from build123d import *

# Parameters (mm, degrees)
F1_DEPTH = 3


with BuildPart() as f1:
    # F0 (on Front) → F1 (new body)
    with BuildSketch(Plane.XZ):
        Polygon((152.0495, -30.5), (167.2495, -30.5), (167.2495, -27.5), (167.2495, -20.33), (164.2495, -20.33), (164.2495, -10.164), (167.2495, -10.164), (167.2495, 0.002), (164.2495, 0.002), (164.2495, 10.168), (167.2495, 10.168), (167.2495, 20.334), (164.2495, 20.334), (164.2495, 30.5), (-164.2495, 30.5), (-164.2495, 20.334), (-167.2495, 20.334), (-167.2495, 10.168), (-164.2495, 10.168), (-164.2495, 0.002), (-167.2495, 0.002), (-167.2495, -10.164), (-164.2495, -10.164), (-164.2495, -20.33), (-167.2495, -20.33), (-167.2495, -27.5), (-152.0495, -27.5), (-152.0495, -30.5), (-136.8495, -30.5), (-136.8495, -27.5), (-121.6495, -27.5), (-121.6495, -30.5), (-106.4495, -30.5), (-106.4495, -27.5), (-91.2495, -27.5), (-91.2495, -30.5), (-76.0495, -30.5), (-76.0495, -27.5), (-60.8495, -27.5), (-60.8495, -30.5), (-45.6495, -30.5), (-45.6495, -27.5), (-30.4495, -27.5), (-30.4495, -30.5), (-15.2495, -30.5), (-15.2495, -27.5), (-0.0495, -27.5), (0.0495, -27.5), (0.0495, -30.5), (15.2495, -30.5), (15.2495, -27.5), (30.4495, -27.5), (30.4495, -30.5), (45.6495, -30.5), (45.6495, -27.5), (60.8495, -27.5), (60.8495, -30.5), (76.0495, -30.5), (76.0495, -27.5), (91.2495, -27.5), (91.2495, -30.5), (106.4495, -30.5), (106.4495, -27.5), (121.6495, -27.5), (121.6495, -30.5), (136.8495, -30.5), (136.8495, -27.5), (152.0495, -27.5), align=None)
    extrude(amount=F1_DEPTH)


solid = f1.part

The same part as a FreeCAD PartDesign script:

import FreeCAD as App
import Part
import Sketcher

doc = App.newDocument("Part")
body = doc.addObject("PartDesign::Body", "Body")

sketch1 = body.newObject("Sketcher::SketchObject", "Sketch")
sketch1.AttachmentSupport = (doc.getObject("XZ_Plane"), [""])
sketch1.MapMode = "FlatFace"
sketch1.addGeometry(Part.LineSegment(App.Vector(152.0495, -30.5, 0), App.Vector(167.2495, -30.5, 0)), False)
sketch1.addGeometry(Part.LineSegment(App.Vector(167.2495, -30.5, 0), App.Vector(167.2495, -20.33, 0)), False)
sketch1.addGeometry(Part.LineSegment(App.Vector(167.2495, -20.33, 0), App.Vector(164.2495, -20.33, 0)), False)
sketch1.addGeometry(Part.LineSegment(App.Vector(164.2495, -20.33, 0), App.Vector(164.2495, -10.164, 0)), False)
sketch1.addGeometry(Part.LineSegment(App.Vector(164.2495, -10.164, 0), App.Vector(167.2495, -10.164, 0)), False)
sketch1.addGeometry(Part.LineSegment(App.Vector(167.2495, -10.164, 0), App.Vector(167.2495, 0.002, 0)), False)
sketch1.addGeometry(Part.LineSegment(App.Vector(167.2495, 0.002, 0), App.Vector(164.2495, 0.002, 0)), False)
sketch1.addGeometry(Part.LineSegment(App.Vector(164.2495, 0.002, 0), App.Vector(164.2495, 10.168, 0)), False)
sketch1.addGeometry(Part.LineSegment(App.Vector(164.2495, 10.168, 0), App.Vector(167.2495, 10.168, 0)), False)
sketch1.addGeometry(Part.LineSegment(App.Vector(167.2495, 10.168, 0), App.Vector(167.2495, 20.334, 0)), False)
sketch1.addGeometry(Part.LineSegment(App.Vector(167.2495, 20.334, 0), App.Vector(164.2495, 20.334, 0)), False)
sketch1.addGeometry(Part.LineSegment(App.Vector(164.2495, 20.334, 0), App.Vector(164.2495, 30.5, 0)), False)
sketch1.addGeometry(Part.LineSegment(App.Vector(164.2495, 30.5, 0), App.Vector(-164.2495, 30.5, 0)), False)
sketch1.addGeometry(Part.LineSegment(App.Vector(-164.2495, 30.5, 0), App.Vector(-164.2495, 20.334, 0)), False)
sketch1.addGeometry(Part.LineSegment(App.Vector(-164.2495, 20.334, 0), App.Vector(-167.2495, 20.334, 0)), False)
sketch1.addGeometry(Part.LineSegment(App.Vector(-167.2495, 20.334, 0), App.Vector(-167.2495, 10.168, 0)), False)
sketch1.addGeometry(Part.LineSegment(App.Vector(-167.2495, 10.168, 0), App.Vector(-164.2495, 10.168, 0)), False)
sketch1.addGeometry(Part.LineSegment(App.Vector(-164.2495, 10.168, 0), App.Vector(-164.2495, 0.002, 0)), False)
sketch1.addGeometry(Part.LineSegment(App.Vector(-164.2495, 0.002, 0), App.Vector(-167.2495, 0.002, 0)), False)
sketch1.addGeometry(Part.LineSegment(App.Vector(-167.2495, 0.002, 0), App.Vector(-167.2495, -10.164, 0)), False)
sketch1.addGeometry(Part.LineSegment(App.Vector(-167.2495, -10.164, 0), App.Vector(-164.2495, -10.164, 0)), False)
sketch1.addGeometry(Part.LineSegment(App.Vector(-164.2495, -10.164, 0), App.Vector(-164.2495, -20.33, 0)), False)
sketch1.addGeometry(Part.LineSegment(App.Vector(-164.2495, -20.33, 0), App.Vector(-167.2495, -20.33, 0)), False)
sketch1.addGeometry(Part.LineSegment(App.Vector(-167.2495, -20.33, 0), App.Vector(-167.2495, -27.5, 0)), False)
sketch1.addGeometry(Part.LineSegment(App.Vector(-167.2495, -27.5, 0), App.Vector(-152.0495, -27.5, 0)), False)
sketch1.addGeometry(Part.LineSegment(App.Vector(-152.0495, -27.5, 0), App.Vector(-152.0495, -30.5, 0)), False)
sketch1.addGeometry(Part.LineSegment(App.Vector(-152.0495, -30.5, 0), App.Vector(-136.8495, -30.5, 0)), False)
sketch1.addGeometry(Part.LineSegment(App.Vector(-136.8495, -30.5, 0), App.Vector(-136.8495, -27.5, 0)), False)
sketch1.addGeometry(Part.LineSegment(App.Vector(-136.8495, -27.5, 0), App.Vector(-121.6495, -27.5, 0)), False)
sketch1.addGeometry(Part.LineSegment(App.Vector(-121.6495, -27.5, 0), App.Vector(-121.6495, -30.5, 0)), False)
sketch1.addGeometry(Part.LineSegment(App.Vector(-121.6495, -30.5, 0), App.Vector(-106.4495, -30.5, 0)), False)
sketch1.addGeometry(Part.LineSegment(App.Vector(-106.4495, -30.5, 0), App.Vector(-106.4495, -27.5, 0)), False)
sketch1.addGeometry(Part.LineSegment(App.Vector(-106.4495, -27.5, 0), App.Vector(-91.2495, -27.5, 0)), False)
sketch1.addGeometry(Part.LineSegment(App.Vector(-91.2495, -27.5, 0), App.Vector(-91.2495, -30.5, 0)), False)
sketch1.addGeometry(Part.LineSegment(App.Vector(-91.2495, -30.5, 0), App.Vector(-76.0495, -30.5, 0)), False)
sketch1.addGeometry(Part.LineSegment(App.Vector(-76.0495, -30.5, 0), App.Vector(-76.0495, -27.5, 0)), False)
sketch1.addGeometry(Part.LineSegment(App.Vector(-76.0495, -27.5, 0), App.Vector(-60.8495, -27.5, 0)), False)
sketch1.addGeometry(Part.LineSegment(App.Vector(-60.8495, -27.5, 0), App.Vector(-60.8495, -30.5, 0)), False)
sketch1.addGeometry(Part.LineSegment(App.Vector(-60.8495, -30.5, 0), App.Vector(-45.6495, -30.5, 0)), False)
sketch1.addGeometry(Part.LineSegment(App.Vector(-45.6495, -30.5, 0), App.Vector(-45.6495, -27.5, 0)), False)
sketch1.addGeometry(Part.LineSegment(App.Vector(-45.6495, -27.5, 0), App.Vector(-30.4495, -27.5, 0)), False)
sketch1.addGeometry(Part.LineSegment(App.Vector(-30.4495, -27.5, 0), App.Vector(-30.4495, -30.5, 0)), False)
sketch1.addGeometry(Part.LineSegment(App.Vector(-30.4495, -30.5, 0), App.Vector(-15.2495, -30.5, 0)), False)
sketch1.addGeometry(Part.LineSegment(App.Vector(-15.2495, -30.5, 0), App.Vector(-15.2495, -27.5, 0)), False)
sketch1.addGeometry(Part.LineSegment(App.Vector(-15.2495, -27.5, 0), App.Vector(0.0495, -27.5, 0)), False)
sketch1.addGeometry(Part.LineSegment(App.Vector(0.0495, -27.5, 0), App.Vector(0.0495, -30.5, 0)), False)
sketch1.addGeometry(Part.LineSegment(App.Vector(0.0495, -30.5, 0), App.Vector(15.2495, -30.5, 0)), False)
sketch1.addGeometry(Part.LineSegment(App.Vector(15.2495, -30.5, 0), App.Vector(15.2495, -27.5, 0)), False)
sketch1.addGeometry(Part.LineSegment(App.Vector(15.2495, -27.5, 0), App.Vector(30.4495, -27.5, 0)), False)
sketch1.addGeometry(Part.LineSegment(App.Vector(30.4495, -27.5, 0), App.Vector(30.4495, -30.5, 0)), False)
sketch1.addGeometry(Part.LineSegment(App.Vector(30.4495, -30.5, 0), App.Vector(45.6495, -30.5, 0)), False)
sketch1.addGeometry(Part.LineSegment(App.Vector(45.6495, -30.5, 0), App.Vector(45.6495, -27.5, 0)), False)
sketch1.addGeometry(Part.LineSegment(App.Vector(45.6495, -27.5, 0), App.Vector(60.8495, -27.5, 0)), False)
sketch1.addGeometry(Part.LineSegment(App.Vector(60.8495, -27.5, 0), App.Vector(60.8495, -30.5, 0)), False)
sketch1.addGeometry(Part.LineSegment(App.Vector(60.8495, -30.5, 0), App.Vector(76.0495, -30.5, 0)), False)
sketch1.addGeometry(Part.LineSegment(App.Vector(76.0495, -30.5, 0), App.Vector(76.0495, -27.5, 0)), False)
sketch1.addGeometry(Part.LineSegment(App.Vector(76.0495, -27.5, 0), App.Vector(91.2495, -27.5, 0)), False)
sketch1.addGeometry(Part.LineSegment(App.Vector(91.2495, -27.5, 0), App.Vector(91.2495, -30.5, 0)), False)
sketch1.addGeometry(Part.LineSegment(App.Vector(91.2495, -30.5, 0), App.Vector(106.4495, -30.5, 0)), False)
sketch1.addGeometry(Part.LineSegment(App.Vector(106.4495, -30.5, 0), App.Vector(106.4495, -27.5, 0)), False)
sketch1.addGeometry(Part.LineSegment(App.Vector(106.4495, -27.5, 0), App.Vector(121.6495, -27.5, 0)), False)
sketch1.addGeometry(Part.LineSegment(App.Vector(121.6495, -27.5, 0), App.Vector(121.6495, -30.5, 0)), False)
sketch1.addGeometry(Part.LineSegment(App.Vector(121.6495, -30.5, 0), App.Vector(136.8495, -30.5, 0)), False)
sketch1.addGeometry(Part.LineSegment(App.Vector(136.8495, -30.5, 0), App.Vector(136.8495, -27.5, 0)), False)
sketch1.addGeometry(Part.LineSegment(App.Vector(136.8495, -27.5, 0), App.Vector(152.0495, -27.5, 0)), False)
sketch1.addGeometry(Part.LineSegment(App.Vector(152.0495, -27.5, 0), App.Vector(152.0495, -30.5, 0)), False)
sketch1.addConstraint(Sketcher.Constraint("Coincident", 0, 2, 1, 1))
sketch1.addConstraint(Sketcher.Constraint("Coincident", 1, 2, 2, 1))
sketch1.addConstraint(Sketcher.Constraint("Coincident", 2, 2, 3, 1))
sketch1.addConstraint(Sketcher.Constraint("Coincident", 3, 2, 4, 1))
sketch1.addConstraint(Sketcher.Constraint("Coincident", 4, 2, 5, 1))
sketch1.addConstraint(Sketcher.Constraint("Coincident", 5, 2, 6, 1))
sketch1.addConstraint(Sketcher.Constraint("Coincident", 6, 2, 7, 1))
sketch1.addConstraint(Sketcher.Constraint("Coincident", 7, 2, 8, 1))
sketch1.addConstraint(Sketcher.Constraint("Coincident", 8, 2, 9, 1))
sketch1.addConstraint(Sketcher.Constraint("Coincident", 9, 2, 10, 1))
sketch1.addConstraint(Sketcher.Constraint("Coincident", 10, 2, 11, 1))
sketch1.addConstraint(Sketcher.Constraint("Coincident", 11, 2, 12, 1))
sketch1.addConstraint(Sketcher.Constraint("Coincident", 12, 2, 13, 1))
sketch1.addConstraint(Sketcher.Constraint("Coincident", 13, 2, 14, 1))
sketch1.addConstraint(Sketcher.Constraint("Coincident", 14, 2, 15, 1))
sketch1.addConstraint(Sketcher.Constraint("Coincident", 15, 2, 16, 1))
sketch1.addConstraint(Sketcher.Constraint("Coincident", 16, 2, 17, 1))
sketch1.addConstraint(Sketcher.Constraint("Coincident", 17, 2, 18, 1))
sketch1.addConstraint(Sketcher.Constraint("Coincident", 18, 2, 19, 1))
sketch1.addConstraint(Sketcher.Constraint("Coincident", 19, 2, 20, 1))
sketch1.addConstraint(Sketcher.Constraint("Coincident", 20, 2, 21, 1))
sketch1.addConstraint(Sketcher.Constraint("Coincident", 21, 2, 22, 1))
sketch1.addConstraint(Sketcher.Constraint("Coincident", 22, 2, 23, 1))
sketch1.addConstraint(Sketcher.Constraint("Coincident", 23, 2, 24, 1))
sketch1.addConstraint(Sketcher.Constraint("Coincident", 24, 2, 25, 1))
sketch1.addConstraint(Sketcher.Constraint("Coincident", 25, 2, 26, 1))
sketch1.addConstraint(Sketcher.Constraint("Coincident", 26, 2, 27, 1))
sketch1.addConstraint(Sketcher.Constraint("Coincident", 27, 2, 28, 1))
sketch1.addConstraint(Sketcher.Constraint("Coincident", 28, 2, 29, 1))
sketch1.addConstraint(Sketcher.Constraint("Coincident", 29, 2, 30, 1))
sketch1.addConstraint(Sketcher.Constraint("Coincident", 30, 2, 31, 1))
sketch1.addConstraint(Sketcher.Constraint("Coincident", 31, 2, 32, 1))
sketch1.addConstraint(Sketcher.Constraint("Coincident", 32, 2, 33, 1))
sketch1.addConstraint(Sketcher.Constraint("Coincident", 33, 2, 34, 1))
sketch1.addConstraint(Sketcher.Constraint("Coincident", 34, 2, 35, 1))
sketch1.addConstraint(Sketcher.Constraint("Coincident", 35, 2, 36, 1))
sketch1.addConstraint(Sketcher.Constraint("Coincident", 36, 2, 37, 1))
sketch1.addConstraint(Sketcher.Constraint("Coincident", 37, 2, 38, 1))
sketch1.addConstraint(Sketcher.Constraint("Coincident", 38, 2, 39, 1))
sketch1.addConstraint(Sketcher.Constraint("Coincident", 39, 2, 40, 1))
sketch1.addConstraint(Sketcher.Constraint("Coincident", 40, 2, 41, 1))
sketch1.addConstraint(Sketcher.Constraint("Coincident", 41, 2, 42, 1))
sketch1.addConstraint(Sketcher.Constraint("Coincident", 42, 2, 43, 1))
sketch1.addConstraint(Sketcher.Constraint("Coincident", 43, 2, 44, 1))
sketch1.addConstraint(Sketcher.Constraint("Coincident", 44, 2, 45, 1))
sketch1.addConstraint(Sketcher.Constraint("Coincident", 45, 2, 46, 1))
sketch1.addConstraint(Sketcher.Constraint("Coincident", 46, 2, 47, 1))
sketch1.addConstraint(Sketcher.Constraint("Coincident", 47, 2, 48, 1))
sketch1.addConstraint(Sketcher.Constraint("Coincident", 48, 2, 49, 1))
sketch1.addConstraint(Sketcher.Constraint("Coincident", 49, 2, 50, 1))
sketch1.addConstraint(Sketcher.Constraint("Coincident", 50, 2, 51, 1))
sketch1.addConstraint(Sketcher.Constraint("Coincident", 51, 2, 52, 1))
sketch1.addConstraint(Sketcher.Constraint("Coincident", 52, 2, 53, 1))
sketch1.addConstraint(Sketcher.Constraint("Coincident", 53, 2, 54, 1))
sketch1.addConstraint(Sketcher.Constraint("Coincident", 54, 2, 55, 1))
sketch1.addConstraint(Sketcher.Constraint("Coincident", 55, 2, 56, 1))
sketch1.addConstraint(Sketcher.Constraint("Coincident", 56, 2, 57, 1))
sketch1.addConstraint(Sketcher.Constraint("Coincident", 57, 2, 58, 1))
sketch1.addConstraint(Sketcher.Constraint("Coincident", 58, 2, 59, 1))
sketch1.addConstraint(Sketcher.Constraint("Coincident", 59, 2, 60, 1))
sketch1.addConstraint(Sketcher.Constraint("Coincident", 60, 2, 61, 1))
sketch1.addConstraint(Sketcher.Constraint("Coincident", 61, 2, 62, 1))
sketch1.addConstraint(Sketcher.Constraint("Coincident", 62, 2, 63, 1))
sketch1.addConstraint(Sketcher.Constraint("Coincident", 63, 2, 64, 1))
sketch1.addConstraint(Sketcher.Constraint("Coincident", 64, 2, 65, 1))
sketch1.addConstraint(Sketcher.Constraint("Coincident", 65, 2, 0, 1))
sketch1.addConstraint(Sketcher.Constraint("Horizontal", 0))
sketch1.addConstraint(Sketcher.Constraint("Vertical", 1))
sketch1.addConstraint(Sketcher.Constraint("Horizontal", 2))
sketch1.addConstraint(Sketcher.Constraint("Vertical", 3))
sketch1.addConstraint(Sketcher.Constraint("Horizontal", 4))
sketch1.addConstraint(Sketcher.Constraint("Vertical", 5))
sketch1.addConstraint(Sketcher.Constraint("Horizontal", 6))
sketch1.addConstraint(Sketcher.Constraint("Vertical", 7))
sketch1.addConstraint(Sketcher.Constraint("Horizontal", 8))
sketch1.addConstraint(Sketcher.Constraint("Vertical", 9))
sketch1.addConstraint(Sketcher.Constraint("Horizontal", 10))
sketch1.addConstraint(Sketcher.Constraint("Vertical", 11))
sketch1.addConstraint(Sketcher.Constraint("Horizontal", 12))
sketch1.addConstraint(Sketcher.Constraint("Vertical", 13))
sketch1.addConstraint(Sketcher.Constraint("Horizontal", 14))
sketch1.addConstraint(Sketcher.Constraint("Vertical", 15))
sketch1.addConstraint(Sketcher.Constraint("Horizontal", 16))
sketch1.addConstraint(Sketcher.Constraint("Vertical", 17))
sketch1.addConstraint(Sketcher.Constraint("Horizontal", 18))
sketch1.addConstraint(Sketcher.Constraint("Vertical", 19))
sketch1.addConstraint(Sketcher.Constraint("Horizontal", 20))
sketch1.addConstraint(Sketcher.Constraint("Vertical", 21))
sketch1.addConstraint(Sketcher.Constraint("Horizontal", 22))
sketch1.addConstraint(Sketcher.Constraint("Vertical", 23))
sketch1.addConstraint(Sketcher.Constraint("Horizontal", 24))
sketch1.addConstraint(Sketcher.Constraint("Vertical", 25))
sketch1.addConstraint(Sketcher.Constraint("Horizontal", 26))
sketch1.addConstraint(Sketcher.Constraint("Vertical", 27))
sketch1.addConstraint(Sketcher.Constraint("Horizontal", 28))
sketch1.addConstraint(Sketcher.Constraint("Vertical", 29))
sketch1.addConstraint(Sketcher.Constraint("Horizontal", 30))
sketch1.addConstraint(Sketcher.Constraint("Vertical", 31))
sketch1.addConstraint(Sketcher.Constraint("Horizontal", 32))
sketch1.addConstraint(Sketcher.Constraint("Vertical", 33))
sketch1.addConstraint(Sketcher.Constraint("Horizontal", 34))
sketch1.addConstraint(Sketcher.Constraint("Vertical", 35))
sketch1.addConstraint(Sketcher.Constraint("Horizontal", 36))
sketch1.addConstraint(Sketcher.Constraint("Vertical", 37))
sketch1.addConstraint(Sketcher.Constraint("Horizontal", 38))
sketch1.addConstraint(Sketcher.Constraint("Vertical", 39))
sketch1.addConstraint(Sketcher.Constraint("Horizontal", 40))
sketch1.addConstraint(Sketcher.Constraint("Vertical", 41))
sketch1.addConstraint(Sketcher.Constraint("Horizontal", 42))
sketch1.addConstraint(Sketcher.Constraint("Vertical", 43))
sketch1.addConstraint(Sketcher.Constraint("Horizontal", 44))
sketch1.addConstraint(Sketcher.Constraint("Vertical", 45))
sketch1.addConstraint(Sketcher.Constraint("Horizontal", 46))
sketch1.addConstraint(Sketcher.Constraint("Vertical", 47))
sketch1.addConstraint(Sketcher.Constraint("Horizontal", 48))
sketch1.addConstraint(Sketcher.Constraint("Vertical", 49))
sketch1.addConstraint(Sketcher.Constraint("Horizontal", 50))
sketch1.addConstraint(Sketcher.Constraint("Vertical", 51))
sketch1.addConstraint(Sketcher.Constraint("Horizontal", 52))
sketch1.addConstraint(Sketcher.Constraint("Vertical", 53))
sketch1.addConstraint(Sketcher.Constraint("Horizontal", 54))
sketch1.addConstraint(Sketcher.Constraint("Vertical", 55))
sketch1.addConstraint(Sketcher.Constraint("Horizontal", 56))
sketch1.addConstraint(Sketcher.Constraint("Vertical", 57))
sketch1.addConstraint(Sketcher.Constraint("Horizontal", 58))
sketch1.addConstraint(Sketcher.Constraint("Vertical", 59))
sketch1.addConstraint(Sketcher.Constraint("Horizontal", 60))
sketch1.addConstraint(Sketcher.Constraint("Vertical", 61))
sketch1.addConstraint(Sketcher.Constraint("Horizontal", 62))
sketch1.addConstraint(Sketcher.Constraint("Vertical", 63))
sketch1.addConstraint(Sketcher.Constraint("Horizontal", 64))
sketch1.addConstraint(Sketcher.Constraint("Vertical", 65))
sketch1.addConstraint(Sketcher.Constraint("Symmetric", 10, 2, 13, 2, -2))
sketch1.addConstraint(Sketcher.Constraint("Symmetric", 8, 2, 15, 2, -2))
sketch1.addConstraint(Sketcher.Constraint("Symmetric", 6, 2, 17, 2, -2))
sketch1.addConstraint(Sketcher.Constraint("Symmetric", 4, 2, 19, 2, -2))
sketch1.addConstraint(Sketcher.Constraint("Symmetric", 2, 2, 21, 2, -2))
sketch1.addConstraint(Sketcher.Constraint("Symmetric", 42, 2, 46, 2, -2))
sketch1.addConstraint(Sketcher.Constraint("Symmetric", 40, 2, 48, 2, -2))
sketch1.addConstraint(Sketcher.Constraint("Symmetric", 38, 2, 50, 2, -2))
sketch1.addConstraint(Sketcher.Constraint("Symmetric", 36, 2, 52, 2, -2))
sketch1.addConstraint(Sketcher.Constraint("Symmetric", 34, 2, 54, 2, -2))
sketch1.addConstraint(Sketcher.Constraint("Symmetric", 32, 2, 56, 2, -2))
sketch1.addConstraint(Sketcher.Constraint("Symmetric", 30, 2, 58, 2, -2))
sketch1.addConstraint(Sketcher.Constraint("Symmetric", 28, 2, 60, 2, -2))
sketch1.addConstraint(Sketcher.Constraint("Symmetric", 26, 2, 62, 2, -2))
sketch1.addConstraint(Sketcher.Constraint("Symmetric", 24, 2, 64, 2, -2))
sketch1.addConstraint(Sketcher.Constraint("Horizontal", 0, 2, 25, 2))
sketch1.addConstraint(Sketcher.Constraint("Horizontal", 24, 2, 27, 2))
sketch1.addConstraint(Sketcher.Constraint("Horizontal", 26, 2, 29, 2))
sketch1.addConstraint(Sketcher.Constraint("Horizontal", 28, 2, 31, 2))
sketch1.addConstraint(Sketcher.Constraint("Horizontal", 30, 2, 33, 2))
sketch1.addConstraint(Sketcher.Constraint("Horizontal", 32, 2, 35, 2))
sketch1.addConstraint(Sketcher.Constraint("Horizontal", 34, 2, 37, 2))
sketch1.addConstraint(Sketcher.Constraint("Horizontal", 36, 2, 39, 2))
sketch1.addConstraint(Sketcher.Constraint("Horizontal", 38, 2, 41, 2))
sketch1.addConstraint(Sketcher.Constraint("Horizontal", 40, 2, 43, 2))
sketch1.addConstraint(Sketcher.Constraint("Vertical", 1, 2, 4, 2))
sketch1.addConstraint(Sketcher.Constraint("Vertical", 3, 2, 6, 2))
sketch1.addConstraint(Sketcher.Constraint("Vertical", 5, 2, 8, 2))
sketch1.addConstraint(Sketcher.Constraint("Vertical", 7, 2, 10, 2))
sketch1.addConstraint(Sketcher.Constraint("Vertical", 19, 2, 22, 2))
sketch1.addConstraint(Sketcher.Constraint("Equal", 24, 26))
sketch1.addConstraint(Sketcher.Constraint("Equal", 26, 28))
sketch1.addConstraint(Sketcher.Constraint("Equal", 28, 30))
sketch1.addConstraint(Sketcher.Constraint("Equal", 30, 32))
sketch1.addConstraint(Sketcher.Constraint("Equal", 32, 34))
sketch1.addConstraint(Sketcher.Constraint("Equal", 34, 36))
sketch1.addConstraint(Sketcher.Constraint("Equal", 36, 38))
sketch1.addConstraint(Sketcher.Constraint("Equal", 38, 40))
sketch1.addConstraint(Sketcher.Constraint("Equal", 40, 42))
sketch1.addConstraint(Sketcher.Constraint("Equal", 42, 46))
sketch1.addConstraint(Sketcher.Constraint("Equal", 3, 5))
sketch1.addConstraint(Sketcher.Constraint("Equal", 5, 7))
sketch1.addConstraint(Sketcher.Constraint("Equal", 7, 9))
sketch1.addConstraint(Sketcher.Constraint("Equal", 9, 11))
sketch1.addConstraint(Sketcher.Constraint("Equal", 22, 25))
sketch1.addConstraint(Sketcher.Constraint("DistanceX", 2, 2, 2, 1, 3.0))
sketch1.addConstraint(Sketcher.Constraint("DistanceX", 0, 1, 0, 2, 15.2))
sketch1.addConstraint(Sketcher.Constraint("DistanceY", 1, 1, 1, 2, 10.17))
sketch1.addConstraint(Sketcher.Constraint("DistanceY", 0, 2, -1, 1, 30.5))
sketch1.addConstraint(Sketcher.Constraint("DistanceY", -1, 1, 11, 2, 30.5))
sketch1.addConstraint(Sketcher.Constraint("DistanceX", 12, 2, 12, 1, 328.499))
pad1 = body.newObject("PartDesign::Pad", "Pad")
pad1.Profile = sketch1
pad1.Length = 3

doc.recompute()
